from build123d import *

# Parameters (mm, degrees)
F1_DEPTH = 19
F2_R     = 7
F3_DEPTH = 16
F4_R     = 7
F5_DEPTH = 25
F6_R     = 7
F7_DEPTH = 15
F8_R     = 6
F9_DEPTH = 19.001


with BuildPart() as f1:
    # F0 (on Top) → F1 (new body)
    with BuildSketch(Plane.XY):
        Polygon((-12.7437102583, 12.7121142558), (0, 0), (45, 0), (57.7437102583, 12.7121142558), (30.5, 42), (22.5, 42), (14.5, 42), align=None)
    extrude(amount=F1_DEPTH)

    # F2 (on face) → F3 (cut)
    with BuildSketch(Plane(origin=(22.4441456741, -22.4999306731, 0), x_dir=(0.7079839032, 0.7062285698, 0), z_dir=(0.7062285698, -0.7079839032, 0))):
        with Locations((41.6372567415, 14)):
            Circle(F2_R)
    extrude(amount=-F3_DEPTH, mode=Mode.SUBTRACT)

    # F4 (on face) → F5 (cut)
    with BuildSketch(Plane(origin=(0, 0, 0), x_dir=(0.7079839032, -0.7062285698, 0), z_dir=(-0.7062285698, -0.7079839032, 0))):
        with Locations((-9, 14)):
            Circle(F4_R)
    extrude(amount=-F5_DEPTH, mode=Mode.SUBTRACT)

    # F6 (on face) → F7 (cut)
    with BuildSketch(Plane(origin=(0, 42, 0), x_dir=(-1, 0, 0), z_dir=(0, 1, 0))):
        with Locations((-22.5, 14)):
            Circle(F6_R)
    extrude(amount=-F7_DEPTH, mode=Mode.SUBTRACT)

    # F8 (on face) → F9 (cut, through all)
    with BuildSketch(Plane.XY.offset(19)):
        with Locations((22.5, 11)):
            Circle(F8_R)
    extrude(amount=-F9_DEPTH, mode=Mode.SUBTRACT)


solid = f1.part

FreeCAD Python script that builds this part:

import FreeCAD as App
import Part
import Sketcher
from FreeCAD import Vector
Q = App.Units.Quantity


def add_polygon(sketch, points):
    """Adds a closed chain of lines whose ends are joined by coincident constraints."""
    first, n = sketch.GeometryCount, len(points)
    for a, b in zip(points, points[1:] + points[:1]):
        sketch.addGeometry(Part.LineSegment(App.Vector(*a, 0), App.Vector(*b, 0)), False)
    for i in range(n):
        sketch.addConstraint(Sketcher.Constraint("Coincident", first + i, 2, first + (i + 1) % n, 1))

doc = App.newDocument("Part")
body = doc.addObject("PartDesign::Body", "Body")

sketch1 = doc.addObject("Sketcher::SketchObject", "Sketch")
body.addObject(sketch1)
sketch1.AttachmentSupport = (doc.XY_Plane, [""])
sketch1.MapMode = "FlatFace"
add_polygon(sketch1, [(-13, 13), (0, 0), (45, 0), (58, 13), (30, 42), (14, 42)])
sketch1.addConstraint([
    Sketcher.Constraint("Horizontal", 1),
    Sketcher.Constraint("Horizontal", 4),
    Sketcher.Constraint("Coincident", 0, 2, -1, 1),
    Sketcher.Constraint("Horizontal", 2, 2, 5, 2),
    Sketcher.Constraint("Equal", 0, 2),
    Sketcher.Constraint("Equal", 3, 5),
    Sketcher.Constraint("DistanceX", 1, 1, 1, 2, Q("45 mm")),
    Sketcher.Constraint("DistanceX", 4, 2, 4, 1, Q("16 mm")),
    Sketcher.Constraint("Distance", 0, Q("18 mm")),
    Sketcher.Constraint("Distance", 3, Q("40 mm")),
    Sketcher.Constraint("DistanceY", -1, 1, 3, 2, Q("42 mm")),
])
pad1 = doc.addObject("PartDesign::Pad", "Pad")
body.addObject(pad1)
pad1.Profile = sketch1
pad1.Length = 19

sketch2 = doc.addObject("Sketcher::SketchObject", "Sketch001")
body.addObject(sketch2)
sketch2.Placement = App.Placement(Vector(22.444146, -22.499931, 0), App.Rotation(Vector(0.707983903, 0.70622857, 0), Vector(0, 0, 1), Vector(0.70622857, -0.707983903, 0), "ZXY"))
sketch2.addGeometry(Part.Circle(Vector(42, 14, 0), Vector(0, 0, 1), 7), False)
sketch2.addConstraint([
    Sketcher.Constraint("Diameter", 0, Q("14 mm")),
    Sketcher.Constraint("DistanceY", -1, 1, 0, 3, Q("14 mm")),
    Sketcher.Constraint("DistanceX", -1, 1, 0, 3, Q("41.637257 mm")),
])
pocket1 = doc.addObject("PartDesign::Pocket", "Pocket")
body.addObject(pocket1)
pocket1.Profile = sketch2
pocket1.Length = 16

sketch3 = doc.addObject("Sketcher::SketchObject", "Sketch002")
body.addObject(sketch3)
sketch3.Placement = App.Placement(Vector(0, 0, 0), App.Rotation(Vector(0.707983903, -0.70622857, 0), Vector(0, 0, 1), Vector(-0.70622857, -0.707983903, 0), "ZXY"))
sketch3.addGeometry(Part.Circle(Vector(-9, 14, 0), Vector(0, 0, 1), 7), False)
sketch3.addConstraint([
    Sketcher.Constraint("Diameter", 0, Q("14 mm")),
    Sketcher.Constraint("DistanceX", 0, 3, -1, 1, Q("9 mm")),
    Sketcher.Constraint("DistanceY", -1, 1, 0, 3, Q("14 mm")),
])
pocket2 = doc.addObject("PartDesign::Pocket", "Pocket001")
body.addObject(pocket2)
pocket2.Profile = sketch3
pocket2.Length = 25

sketch4 = doc.addObject("Sketcher::SketchObject", "Sketch003")
body.addObject(sketch4)
sketch4.AttachmentSupport = (doc.XZ_Plane, [""])
sketch4.MapMode = "FlatFace"
sketch4.AttachmentOffset = App.Placement(Vector(0, 0, -42), App.Rotation())
sketch4.addGeometry(Part.Circle(Vector(22, 14, 0), Vector(0, 0, 1), 7), False)
sketch4.addConstraint([
    Sketcher.Constraint("Diameter", 0, Q("14 mm")),
    Sketcher.Constraint("DistanceY", -1, 1, 0, 3, Q("14 mm")),
    Sketcher.Constraint("DistanceX", -1, 1, 0, 3, Q("22.5 mm")),
])
pocket3 = doc.addObject("PartDesign::Pocket", "Pocket002")
body.addObject(pocket3)
pocket3.Profile = sketch4
pocket3.Length = 15
pocket3.Reversed = True

sketch5 = doc.addObject("Sketcher::SketchObject", "Sketch004")
body.addObject(sketch5)
sketch5.AttachmentSupport = (doc.XY_Plane, [""])
sketch5.MapMode = "FlatFace"
sketch5.AttachmentOffset = App.Placement(Vector(0, 0, 19), App.Rotation())
sketch5.addGeometry(Part.Circle(Vector(22, 11, 0), Vector(0, 0, 1), 6), False)
sketch5.addConstraint([
    Sketcher.Constraint("Diameter", 0, Q("12 mm")),
    Sketcher.Constraint("DistanceY", -1, 1, 0, 3, Q("11 mm")),
    Sketcher.Constraint("DistanceX", -1, 1, 0, 3, Q("22.5 mm")),
])
pocket4 = doc.addObject("PartDesign::Pocket", "Pocket003")
body.addObject(pocket4)
pocket4.Profile = sketch5
pocket4.Type = "ThroughAll"

doc.recompute()
